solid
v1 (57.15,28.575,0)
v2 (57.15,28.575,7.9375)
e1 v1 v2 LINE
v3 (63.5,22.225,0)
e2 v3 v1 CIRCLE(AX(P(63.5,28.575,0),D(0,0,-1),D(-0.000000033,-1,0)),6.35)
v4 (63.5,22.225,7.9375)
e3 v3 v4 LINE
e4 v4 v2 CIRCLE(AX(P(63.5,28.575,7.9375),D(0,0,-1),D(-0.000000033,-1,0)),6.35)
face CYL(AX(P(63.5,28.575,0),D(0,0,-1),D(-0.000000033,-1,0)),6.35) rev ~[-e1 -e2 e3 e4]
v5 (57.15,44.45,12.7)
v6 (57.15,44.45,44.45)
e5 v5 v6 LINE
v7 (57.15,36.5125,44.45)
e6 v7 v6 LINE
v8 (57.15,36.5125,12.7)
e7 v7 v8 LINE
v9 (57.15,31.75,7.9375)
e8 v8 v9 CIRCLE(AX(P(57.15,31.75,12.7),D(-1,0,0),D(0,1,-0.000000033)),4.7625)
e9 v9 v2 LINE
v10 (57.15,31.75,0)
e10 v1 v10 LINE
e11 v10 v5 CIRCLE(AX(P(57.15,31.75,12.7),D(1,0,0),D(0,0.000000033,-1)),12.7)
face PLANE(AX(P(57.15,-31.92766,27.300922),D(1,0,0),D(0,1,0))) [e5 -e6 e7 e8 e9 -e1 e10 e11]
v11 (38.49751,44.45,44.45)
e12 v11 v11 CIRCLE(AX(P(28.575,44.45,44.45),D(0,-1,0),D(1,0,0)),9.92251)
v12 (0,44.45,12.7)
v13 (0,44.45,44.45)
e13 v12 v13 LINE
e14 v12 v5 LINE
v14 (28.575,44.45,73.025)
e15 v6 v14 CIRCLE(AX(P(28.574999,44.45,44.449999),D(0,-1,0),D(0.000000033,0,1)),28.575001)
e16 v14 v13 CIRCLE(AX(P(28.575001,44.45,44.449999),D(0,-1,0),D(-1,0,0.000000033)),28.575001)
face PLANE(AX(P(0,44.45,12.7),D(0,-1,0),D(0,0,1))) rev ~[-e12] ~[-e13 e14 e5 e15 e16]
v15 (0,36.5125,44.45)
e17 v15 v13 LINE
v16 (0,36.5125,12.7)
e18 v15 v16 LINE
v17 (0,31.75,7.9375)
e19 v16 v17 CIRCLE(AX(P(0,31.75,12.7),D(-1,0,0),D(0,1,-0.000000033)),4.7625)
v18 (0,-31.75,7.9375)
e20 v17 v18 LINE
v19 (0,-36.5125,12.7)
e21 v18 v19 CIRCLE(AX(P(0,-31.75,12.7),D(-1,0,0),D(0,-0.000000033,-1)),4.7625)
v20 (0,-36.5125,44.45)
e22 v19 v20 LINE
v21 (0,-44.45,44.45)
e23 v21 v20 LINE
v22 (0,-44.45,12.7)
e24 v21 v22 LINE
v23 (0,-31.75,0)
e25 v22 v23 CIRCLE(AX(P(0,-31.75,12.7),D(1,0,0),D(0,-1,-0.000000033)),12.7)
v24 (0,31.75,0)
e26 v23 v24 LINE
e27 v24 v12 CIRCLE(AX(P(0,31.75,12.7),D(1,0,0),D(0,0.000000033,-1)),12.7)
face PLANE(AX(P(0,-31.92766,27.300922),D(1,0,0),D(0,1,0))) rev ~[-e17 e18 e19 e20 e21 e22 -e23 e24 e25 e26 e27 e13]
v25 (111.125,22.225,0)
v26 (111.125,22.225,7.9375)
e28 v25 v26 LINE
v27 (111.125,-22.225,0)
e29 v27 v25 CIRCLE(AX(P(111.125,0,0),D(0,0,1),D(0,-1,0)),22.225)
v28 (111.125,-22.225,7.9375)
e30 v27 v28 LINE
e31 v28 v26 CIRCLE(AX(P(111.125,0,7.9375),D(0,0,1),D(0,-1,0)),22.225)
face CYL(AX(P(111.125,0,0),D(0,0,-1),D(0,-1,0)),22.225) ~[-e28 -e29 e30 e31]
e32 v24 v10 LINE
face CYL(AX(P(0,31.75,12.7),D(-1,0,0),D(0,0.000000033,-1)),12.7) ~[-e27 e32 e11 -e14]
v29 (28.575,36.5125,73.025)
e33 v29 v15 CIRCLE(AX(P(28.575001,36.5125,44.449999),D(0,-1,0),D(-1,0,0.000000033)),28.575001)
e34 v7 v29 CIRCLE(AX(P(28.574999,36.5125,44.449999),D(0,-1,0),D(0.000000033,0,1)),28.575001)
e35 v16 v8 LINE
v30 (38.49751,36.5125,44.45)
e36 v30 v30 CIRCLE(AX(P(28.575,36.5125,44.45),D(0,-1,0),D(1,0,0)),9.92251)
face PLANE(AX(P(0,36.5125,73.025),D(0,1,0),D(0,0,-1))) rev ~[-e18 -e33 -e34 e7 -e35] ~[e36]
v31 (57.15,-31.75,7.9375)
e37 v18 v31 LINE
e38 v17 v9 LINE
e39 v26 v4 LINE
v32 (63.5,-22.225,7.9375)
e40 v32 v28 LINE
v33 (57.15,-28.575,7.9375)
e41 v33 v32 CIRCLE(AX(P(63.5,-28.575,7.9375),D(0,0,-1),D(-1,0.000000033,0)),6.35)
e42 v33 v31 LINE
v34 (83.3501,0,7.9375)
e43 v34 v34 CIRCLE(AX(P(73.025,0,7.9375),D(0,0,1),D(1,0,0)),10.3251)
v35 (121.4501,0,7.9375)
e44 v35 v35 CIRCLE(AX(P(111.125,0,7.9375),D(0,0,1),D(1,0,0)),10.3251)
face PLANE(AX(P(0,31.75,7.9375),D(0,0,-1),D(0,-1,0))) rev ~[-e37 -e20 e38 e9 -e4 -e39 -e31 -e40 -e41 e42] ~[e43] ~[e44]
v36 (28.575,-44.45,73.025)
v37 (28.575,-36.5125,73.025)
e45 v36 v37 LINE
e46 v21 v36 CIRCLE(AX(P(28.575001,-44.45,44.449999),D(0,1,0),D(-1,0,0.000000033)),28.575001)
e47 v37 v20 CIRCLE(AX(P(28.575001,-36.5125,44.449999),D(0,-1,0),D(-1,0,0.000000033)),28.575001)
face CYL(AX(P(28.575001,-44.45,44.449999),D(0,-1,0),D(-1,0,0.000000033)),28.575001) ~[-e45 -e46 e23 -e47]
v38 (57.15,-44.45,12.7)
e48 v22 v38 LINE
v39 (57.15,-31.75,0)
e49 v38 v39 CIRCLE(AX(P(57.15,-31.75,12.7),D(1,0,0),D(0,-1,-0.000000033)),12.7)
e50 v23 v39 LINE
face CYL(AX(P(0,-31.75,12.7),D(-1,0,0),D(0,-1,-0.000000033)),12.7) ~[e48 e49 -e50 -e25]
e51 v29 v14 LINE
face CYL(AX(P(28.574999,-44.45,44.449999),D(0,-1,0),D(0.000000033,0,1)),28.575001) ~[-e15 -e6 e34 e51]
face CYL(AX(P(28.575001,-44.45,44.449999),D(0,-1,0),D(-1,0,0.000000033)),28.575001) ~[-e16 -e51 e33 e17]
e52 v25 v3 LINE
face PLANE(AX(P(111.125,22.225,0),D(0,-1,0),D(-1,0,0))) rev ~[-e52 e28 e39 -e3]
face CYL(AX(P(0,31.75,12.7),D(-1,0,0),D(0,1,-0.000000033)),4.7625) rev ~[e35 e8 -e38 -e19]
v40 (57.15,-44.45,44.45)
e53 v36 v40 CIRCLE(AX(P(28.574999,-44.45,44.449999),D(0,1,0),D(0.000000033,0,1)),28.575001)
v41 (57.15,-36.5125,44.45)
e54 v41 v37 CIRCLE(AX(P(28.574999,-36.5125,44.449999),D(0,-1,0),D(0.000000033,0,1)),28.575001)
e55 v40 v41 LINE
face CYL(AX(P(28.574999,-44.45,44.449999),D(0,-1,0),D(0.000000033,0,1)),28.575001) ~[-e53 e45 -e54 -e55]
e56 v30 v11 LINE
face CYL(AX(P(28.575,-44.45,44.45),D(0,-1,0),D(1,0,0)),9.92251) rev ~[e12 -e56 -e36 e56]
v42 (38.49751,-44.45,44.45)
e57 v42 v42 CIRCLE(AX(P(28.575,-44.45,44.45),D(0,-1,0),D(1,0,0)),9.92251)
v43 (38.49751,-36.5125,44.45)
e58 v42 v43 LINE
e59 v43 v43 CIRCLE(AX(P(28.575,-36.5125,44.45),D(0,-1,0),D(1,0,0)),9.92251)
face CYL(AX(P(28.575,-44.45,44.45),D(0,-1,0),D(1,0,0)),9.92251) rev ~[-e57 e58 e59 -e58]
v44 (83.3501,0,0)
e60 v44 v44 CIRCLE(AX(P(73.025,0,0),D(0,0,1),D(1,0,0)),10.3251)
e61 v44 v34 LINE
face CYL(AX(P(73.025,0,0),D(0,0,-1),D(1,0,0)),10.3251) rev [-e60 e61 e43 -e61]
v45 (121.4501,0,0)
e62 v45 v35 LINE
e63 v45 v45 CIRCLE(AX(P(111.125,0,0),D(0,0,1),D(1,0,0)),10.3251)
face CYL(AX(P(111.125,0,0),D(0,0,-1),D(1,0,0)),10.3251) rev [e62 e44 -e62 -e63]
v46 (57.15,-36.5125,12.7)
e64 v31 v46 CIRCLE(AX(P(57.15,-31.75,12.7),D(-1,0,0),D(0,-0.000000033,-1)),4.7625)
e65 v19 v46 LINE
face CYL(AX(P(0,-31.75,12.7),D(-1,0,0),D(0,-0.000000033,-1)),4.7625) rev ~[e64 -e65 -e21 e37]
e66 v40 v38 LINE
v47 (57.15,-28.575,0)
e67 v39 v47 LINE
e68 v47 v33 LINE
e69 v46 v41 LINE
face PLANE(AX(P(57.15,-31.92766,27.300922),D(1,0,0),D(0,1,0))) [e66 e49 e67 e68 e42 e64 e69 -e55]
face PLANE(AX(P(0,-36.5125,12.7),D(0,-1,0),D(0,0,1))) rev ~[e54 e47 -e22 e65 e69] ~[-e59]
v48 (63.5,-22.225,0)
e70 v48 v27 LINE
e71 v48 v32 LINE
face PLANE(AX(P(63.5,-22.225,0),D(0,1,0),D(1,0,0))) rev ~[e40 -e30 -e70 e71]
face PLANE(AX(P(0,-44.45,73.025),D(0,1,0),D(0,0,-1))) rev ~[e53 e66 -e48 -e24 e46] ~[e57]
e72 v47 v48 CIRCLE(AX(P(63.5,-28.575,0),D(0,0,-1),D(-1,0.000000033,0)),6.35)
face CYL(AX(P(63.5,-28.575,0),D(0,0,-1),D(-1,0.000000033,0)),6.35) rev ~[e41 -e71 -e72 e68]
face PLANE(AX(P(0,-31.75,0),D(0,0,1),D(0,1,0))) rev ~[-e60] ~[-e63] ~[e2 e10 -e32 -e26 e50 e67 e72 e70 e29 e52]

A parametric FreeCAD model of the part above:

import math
import FreeCAD as App
import Part
import Sketcher

V = App.Vector
Q = App.Units.Quantity

doc = App.newDocument("Part")
body = doc.addObject("PartDesign::Body", "Body")

# Sketch on YZ plane
sketch1 = body.newObject("Sketcher::SketchObject", "Sketch")
sketch1.AttachmentSupport = (doc.getObject("YZ_Plane"), [""])
sketch1.MapMode = "FlatFace"
sketch1.addGeometry(Part.LineSegment(V(-36.5, 73, 0), V(-44.5, 73, 0)), False)
sketch1.addGeometry(Part.LineSegment(V(-44.5, 73, 0), V(-44.5, 12.7, 0)), False)
sketch1.addGeometry(Part.ArcOfCircle(Part.Circle(V(-31.7, 12.7, 0), V(0, 0, 1), 12.7), math.radians(-180), math.radians(-90)), False)
sketch1.addGeometry(Part.LineSegment(V(-31.8, 0, 0), V(31.8, 0, 0)), False)
sketch1.addGeometry(Part.ArcOfCircle(Part.Circle(V(31.7, 12.7, 0), V(0, 0, 1), 12.7), math.radians(-90), math.radians(0)), False)
sketch1.addGeometry(Part.LineSegment(V(44.5, 12.7, 0), V(44.5, 73, 0)), False)
sketch1.addGeometry(Part.LineSegment(V(44.5, 73, 0), V(36.5, 73, 0)), False)
sketch1.addGeometry(Part.LineSegment(V(36.5, 73, 0), V(36.5, 12.7, 0)), False)
sketch1.addGeometry(Part.ArcOfCircle(Part.Circle(V(31.7, 12.7, 0), V(0, 0, 1), 4.8), math.radians(-90), math.radians(0)), False)
sketch1.addGeometry(Part.LineSegment(V(31.8, 7.9, 0), V(-31.8, 7.9, 0)), False)
sketch1.addGeometry(Part.ArcOfCircle(Part.Circle(V(-31.7, 12.7, 0), V(0, 0, 1), 4.8), math.radians(-180), math.radians(-90)), False)
sketch1.addGeometry(Part.LineSegment(V(-36.5, 12.7, 0), V(-36.5, 73, 0)), False)
sketch1.addConstraint(Sketcher.Constraint("Coincident", 0, 2, 1, 1))
sketch1.addConstraint(Sketcher.Constraint("Tangent", 1, 2, 2, 1))
sketch1.addConstraint(Sketcher.Constraint("Tangent", 2, 2, 3, 1))
sketch1.addConstraint(Sketcher.Constraint("Tangent", 3, 2, 4, 1))
sketch1.addConstraint(Sketcher.Constraint("Tangent", 4, 2, 5, 1))
sketch1.addConstraint(Sketcher.Constraint("Coincident", 5, 2, 6, 1))
sketch1.addConstraint(Sketcher.Constraint("Coincident", 6, 2, 7, 1))
sketch1.addConstraint(Sketcher.Constraint("Tangent", 7, 2, 8, 2))
sketch1.addConstraint(Sketcher.Constraint("Tangent", 8, 1, 9, 1))
sketch1.addConstraint(Sketcher.Constraint("Tangent", 9, 2, 10, 2))
sketch1.addConstraint(Sketcher.Constraint("Tangent", 10, 1, 11, 1))
sketch1.addConstraint(Sketcher.Constraint("Coincident", 11, 2, 0, 1))
sketch1.addConstraint(Sketcher.Constraint("Horizontal", 0))
sketch1.addConstraint(Sketcher.Constraint("Vertical", 1))
sketch1.addConstraint(Sketcher.Constraint("Horizontal", 3))
sketch1.addConstraint(Sketcher.Constraint("Vertical", 5))
sketch1.addConstraint(Sketcher.Constraint("Horizontal", 6))
sketch1.addConstraint(Sketcher.Constraint("Vertical", 7))
sketch1.addConstraint(Sketcher.Constraint("Horizontal", 9))
sketch1.addConstraint(Sketcher.Constraint("Vertical", 11))
sketch1.addConstraint(Sketcher.Constraint("Coincident", 8, 3, 4, 3))
sketch1.addConstraint(Sketcher.Constraint("Coincident", 10, 3, 2, 3))
sketch1.addConstraint(Sketcher.Constraint("Equal", 2, 4))
sketch1.addConstraint(Sketcher.Constraint("Symmetric", 2, 2, 3, 2, -1, 1))
sketch1.addConstraint(Sketcher.Constraint("Horizontal", 0, 2, 5, 2))
sketch1.addConstraint(Sketcher.Constraint("Radius", 2, Q("0.5 in")))
sketch1.addConstraint(Sketcher.Constraint("DistanceX", 3, 1, 3, 2, Q("2.5 in")))
sketch1.addConstraint(Sketcher.Constraint("Radius", 8, Q("0.1875 in")))
sketch1.addConstraint(Sketcher.Constraint("DistanceY", 1, 2, 1, 1, Q("2.375 in")))
pad1 = body.newObject("PartDesign::Pad", "Pad")
pad1.Profile = sketch1
pad1.Length = Q("2.25 in")

# Sketch on XZ plane
sketch2 = body.newObject("Sketcher::SketchObject", "Sketch001")
sketch2.AttachmentSupport = (doc.getObject("XZ_Plane"), [""])
sketch2.MapMode = "FlatFace"
sketch2.AttachmentOffset = App.Placement(V(0, 0, 1.75 * 25.4), App.Rotation())
sketch2.addGeometry(Part.Circle(V(29, 44, 0), V(0, 0, 1), 10), False)
sketch2.addGeometry(Part.ArcOfCircle(Part.Circle(V(29, 44, 0), V(0, 0, 1), 29), math.radians(0), math.radians(90)), False)
sketch2.addGeometry(Part.LineSegment(V(57, 44, 0), V(57, 73, 0)), False)
sketch2.addGeometry(Part.LineSegment(V(57, 73, 0), V(29, 73, 0)), False)
sketch2.addGeometry(Part.ArcOfCircle(Part.Circle(V(29, 44, 0), V(0, 0, 1), 29), math.radians(90), math.radians(180)), False)
sketch2.addGeometry(Part.LineSegment(V(29, 73, 0), V(0, 73, 0)), False)
sketch2.addGeometry(Part.LineSegment(V(0, 73, 0), V(0, 44, 0)), False)
sketch2.addConstraint(Sketcher.Constraint("Tangent", 1, 1, 2, 1))
sketch2.addConstraint(Sketcher.Constraint("Coincident", 2, 2, 3, 1))
sketch2.addConstraint(Sketcher.Constraint("Tangent", 3, 2, 1, 2))
sketch2.addConstraint(Sketcher.Constraint("Tangent", 4, 1, 5, 1))
sketch2.addConstraint(Sketcher.Constraint("Coincident", 5, 2, 6, 1))
sketch2.addConstraint(Sketcher.Constraint("Tangent", 6, 2, 4, 2))
sketch2.addConstraint(Sketcher.Constraint("Vertical", 2))
sketch2.addConstraint(Sketcher.Constraint("Horizontal", 3))
sketch2.addConstraint(Sketcher.Constraint("Horizontal", 5))
sketch2.addConstraint(Sketcher.Constraint("Vertical", 6))
sketch2.addConstraint(Sketcher.Constraint("Coincident", 1, 3, 0, 3))
sketch2.addConstraint(Sketcher.Constraint("Coincident", 4, 3, 0, 3))
sketch2.addConstraint(Sketcher.Constraint("Equal", 1, 4))
sketch2.addConstraint(Sketcher.Constraint("PointOnObject", 5, 2, -2))
sketch2.addConstraint(Sketcher.Constraint("Radius", 1, Q("1.125 in")))
sketch2.addConstraint(Sketcher.Constraint("Diameter", 0, Q("0.7813 in")))
sketch2.addConstraint(Sketcher.Constraint("DistanceY", -1, 1, 0, 3, Q("1.75 in")))
pocket1 = body.newObject("PartDesign::Pocket", "Pocket")
pocket1.Profile = sketch2
pocket1.Type = "ThroughAll"

# Sketch on XY plane
sketch3 = body.newObject("Sketcher::SketchObject", "Sketch002")
sketch3.AttachmentSupport = (doc.getObject("XY_Plane"), [""])
sketch3.MapMode = "FlatFace"
sketch3.addGeometry(Part.ArcOfCircle(Part.Circle(V(64, 29, 0), V(0, 0, 1), 6), math.radians(-180), math.radians(-90)), False)
sketch3.addGeometry(Part.LineSegment(V(57, 29, 0), V(57, -29, 0)), False)
sketch3.addGeometry(Part.ArcOfCircle(Part.Circle(V(64, -29, 0), V(0, 0, 1), 6), math.radians(90), math.radians(180)), False)
sketch3.addGeometry(Part.LineSegment(V(64, -22, 0), V(111, -22, 0)), False)
sketch3.addGeometry(Part.ArcOfCircle(Part.Circle(V(111, 0, 0), V(0, 0, 1), 22), math.radians(-90), math.radians(90)), False)
sketch3.addGeometry(Part.LineSegment(V(111, 22, 0), V(64, 22, 0)), False)
sketch3.addGeometry(Part.Circle(V(73, 0, 0), V(0, 0, 1), 10), False)
sketch3.addGeometry(Part.Circle(V(111, 0, 0), V(0, 0, 1), 10), False)
sketch3.addConstraint(Sketcher.Constraint("Tangent", 0, 1, 1, 1))
sketch3.addConstraint(Sketcher.Constraint("Tangent", 1, 2, 2, 2))
sketch3.addConstraint(Sketcher.Constraint("Tangent", 2, 1, 3, 1))
sketch3.addConstraint(Sketcher.Constraint("Tangent", 3, 2, 4, 1))
sketch3.addConstraint(Sketcher.Constraint("Tangent", 4, 2, 5, 1))
sketch3.addConstraint(Sketcher.Constraint("Tangent", 5, 2, 0, 2))
sketch3.addConstraint(Sketcher.Constraint("Vertical", 1))
sketch3.addConstraint(Sketcher.Constraint("Horizontal", 3))
sketch3.addConstraint(Sketcher.Constraint("Horizontal", 5))
sketch3.addConstraint(Sketcher.Constraint("Coincident", 7, 3, 4, 3))
sketch3.addConstraint(Sketcher.Constraint("Equal", 0, 2))
sketch3.addConstraint(Sketcher.Constraint("Equal", 6, 7))
sketch3.addConstraint(Sketcher.Constraint("PointOnObject", 4, 3, -1))
sketch3.addConstraint(Sketcher.Constraint("PointOnObject", 6, 3, -1))
sketch3.addConstraint(Sketcher.Constraint("Radius", 0, Q("0.25 in")))
sketch3.addConstraint(Sketcher.Constraint("Diameter", 6, Q("0.813 in")))
sketch3.addConstraint(Sketcher.Constraint("Radius", 4, Q("0.875 in")))
sketch3.addConstraint(Sketcher.Constraint("DistanceX", -1, 1, 0, 3, Q("2.5 in")))
sketch3.addConstraint(Sketcher.Constraint("DistanceX", 6, 3, 4, 3, Q("1.5 in")))
sketch3.addConstraint(Sketcher.Constraint("DistanceX", 3, 1, 3, 2, Q("1.875 in")))
pad2 = body.newObject("PartDesign::Pad", "Pad001")
pad2.Profile = sketch3
pad2.Length = Q("0.3125 in")

doc.recompute()
